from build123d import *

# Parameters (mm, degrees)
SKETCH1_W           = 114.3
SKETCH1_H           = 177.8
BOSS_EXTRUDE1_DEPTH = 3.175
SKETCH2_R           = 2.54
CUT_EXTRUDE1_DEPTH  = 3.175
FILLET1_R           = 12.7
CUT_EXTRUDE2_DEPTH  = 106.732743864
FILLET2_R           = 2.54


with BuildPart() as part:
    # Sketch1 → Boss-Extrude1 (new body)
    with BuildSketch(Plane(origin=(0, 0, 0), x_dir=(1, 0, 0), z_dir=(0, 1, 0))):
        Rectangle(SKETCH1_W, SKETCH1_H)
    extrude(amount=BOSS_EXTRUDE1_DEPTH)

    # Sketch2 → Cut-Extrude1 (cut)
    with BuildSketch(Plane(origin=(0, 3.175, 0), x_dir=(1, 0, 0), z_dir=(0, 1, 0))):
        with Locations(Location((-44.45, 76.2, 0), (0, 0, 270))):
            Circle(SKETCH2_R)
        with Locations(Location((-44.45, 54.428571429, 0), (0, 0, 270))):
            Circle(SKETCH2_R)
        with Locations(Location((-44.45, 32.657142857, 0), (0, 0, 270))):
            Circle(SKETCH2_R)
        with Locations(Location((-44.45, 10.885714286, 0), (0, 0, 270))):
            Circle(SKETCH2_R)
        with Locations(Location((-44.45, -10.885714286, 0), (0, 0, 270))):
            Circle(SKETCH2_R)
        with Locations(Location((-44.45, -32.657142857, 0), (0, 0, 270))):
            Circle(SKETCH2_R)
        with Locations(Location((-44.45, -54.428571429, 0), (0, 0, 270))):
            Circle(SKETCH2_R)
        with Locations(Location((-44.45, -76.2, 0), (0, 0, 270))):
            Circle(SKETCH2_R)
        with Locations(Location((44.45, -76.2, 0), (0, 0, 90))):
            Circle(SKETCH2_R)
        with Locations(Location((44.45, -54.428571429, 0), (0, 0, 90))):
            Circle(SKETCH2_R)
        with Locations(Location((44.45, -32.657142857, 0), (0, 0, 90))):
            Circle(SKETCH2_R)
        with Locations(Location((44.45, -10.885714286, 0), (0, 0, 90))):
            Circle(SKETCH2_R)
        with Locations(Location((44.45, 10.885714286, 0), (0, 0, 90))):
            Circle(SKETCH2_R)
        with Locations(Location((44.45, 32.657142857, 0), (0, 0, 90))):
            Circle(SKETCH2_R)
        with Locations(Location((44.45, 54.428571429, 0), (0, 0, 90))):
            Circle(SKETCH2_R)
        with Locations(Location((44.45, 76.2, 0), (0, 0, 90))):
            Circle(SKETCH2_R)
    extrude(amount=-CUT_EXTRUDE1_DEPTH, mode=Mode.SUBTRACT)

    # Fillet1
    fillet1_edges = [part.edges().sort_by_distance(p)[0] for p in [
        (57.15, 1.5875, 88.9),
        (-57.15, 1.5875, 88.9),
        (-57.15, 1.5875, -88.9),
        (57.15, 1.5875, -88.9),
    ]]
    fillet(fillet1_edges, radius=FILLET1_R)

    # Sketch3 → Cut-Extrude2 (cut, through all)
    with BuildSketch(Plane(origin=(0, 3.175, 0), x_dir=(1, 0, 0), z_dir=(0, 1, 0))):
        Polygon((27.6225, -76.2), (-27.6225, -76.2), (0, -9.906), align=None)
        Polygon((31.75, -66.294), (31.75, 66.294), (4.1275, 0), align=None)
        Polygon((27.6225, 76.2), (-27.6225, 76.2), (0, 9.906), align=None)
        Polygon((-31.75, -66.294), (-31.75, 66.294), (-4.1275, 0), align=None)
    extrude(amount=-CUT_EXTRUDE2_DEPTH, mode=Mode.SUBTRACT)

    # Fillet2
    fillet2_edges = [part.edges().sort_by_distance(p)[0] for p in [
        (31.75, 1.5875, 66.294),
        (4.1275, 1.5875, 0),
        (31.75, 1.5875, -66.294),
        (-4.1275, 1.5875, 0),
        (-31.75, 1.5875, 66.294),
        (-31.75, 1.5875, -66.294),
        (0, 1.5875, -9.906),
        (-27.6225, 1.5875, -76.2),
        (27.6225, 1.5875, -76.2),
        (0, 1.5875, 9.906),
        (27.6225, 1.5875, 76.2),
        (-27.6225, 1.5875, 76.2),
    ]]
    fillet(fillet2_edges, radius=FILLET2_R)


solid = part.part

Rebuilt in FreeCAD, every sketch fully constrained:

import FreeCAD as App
import Part
import Sketcher
from FreeCAD import Vector
Q = App.Units.Quantity


def edges_at(feature, points):
    """Names of the edges that pass closest to the given points."""
    edges = feature.Shape.Edges
    near = lambda p: min(range(len(edges)), key=lambda i: edges[i].distToShape(Part.Vertex(*p))[0])
    return sorted({f"Edge{near(p) + 1}" for p in points})

doc = App.newDocument("Part")
params = doc.addObject("Spreadsheet::Sheet", "Params")
for row, (alias, value) in enumerate([
    ("sketch1_height", "7 in"),
    ("sketch1_width", "4.5 in"),
    ("pad1_length", "0.125 in"),
    ("sketch2_diameter", "0.2 in"),
    ("pocket1_length", "0.125 in"),
    ("fillet_radius", "0.5 in"),
    ("sketch3_height", "5.22 in"),
    ("sketch3_width", "2.175 in"),
    ("fillet2_radius", "0.1 in"),
], start=1):
    params.set(f"A{row}", alias)
    params.set(f"B{row}", "=" + value)
    params.setAlias(f"B{row}", alias)

body = doc.addObject("PartDesign::Body", "Body")

# Sketch on XZ plane
sketch1 = body.newObject("Sketcher::SketchObject", "Sketch")
sketch1.AttachmentSupport = (doc.getObject("XZ_Plane"), [""])
sketch1.MapMode = "FlatFace"
sketch1.addGeometry([
    Part.LineSegment(Vector(-57, -89, 0), Vector(-57, 89, 0)),
    Part.LineSegment(Vector(-57, 89, 0), Vector(57, 89, 0)),
    Part.LineSegment(Vector(57, 89, 0), Vector(57, -89, 0)),
    Part.LineSegment(Vector(57, -89, 0), Vector(-57, -89, 0)),
], False)
sketch1.addConstraint([
    Sketcher.Constraint("Coincident", 0, 2, 1, 1),
    Sketcher.Constraint("Coincident", 1, 2, 2, 1),
    Sketcher.Constraint("Coincident", 2, 2, 3, 1),
    Sketcher.Constraint("Coincident", 3, 2, 0, 1),
    Sketcher.Constraint("Vertical", 0),
    Sketcher.Constraint("Horizontal", 1),
    Sketcher.Constraint("Vertical", 2),
    Sketcher.Constraint("Horizontal", 3),
    Sketcher.Constraint("Symmetric", 0, 2, 2, 2, -1, 1),
    Sketcher.Constraint("DistanceY", 0, 1, 0, 2, Q("7 in")),
    Sketcher.Constraint("DistanceX", 1, 1, 1, 2, Q("4.5 in")),
])
sketch1.setExpression("Constraints[9]", "Params.sketch1_height")
sketch1.setExpression("Constraints[10]", "Params.sketch1_width")
pad1 = body.newObject("PartDesign::Pad", "Pad")
pad1.Profile = sketch1
pad1.setExpression("Length", "Params.pad1_length")
pad1.Reversed = True

# Sketch on XZ plane
sketch2 = body.newObject("Sketcher::SketchObject", "Sketch001")
sketch2.AttachmentSupport = (doc.getObject("XZ_Plane"), [""])
sketch2.MapMode = "FlatFace"
sketch2.AttachmentOffset = App.Placement(Vector(0, 0, -0.125 * 25.4), App.Rotation())
sketch2.addGeometry([
    Part.Circle(Vector(-44.5, -76.2, 0), Vector(0, 0, 1), 2.5),  # 0
    Part.Circle(Vector(-44.5, -54.4, 0), Vector(0, 0, 1), 2.5),  # 1
    Part.Circle(Vector(-44.5, -32.7, 0), Vector(0, 0, 1), 2.5),  # 2
    Part.Circle(Vector(-44.5, -10.9, 0), Vector(0, 0, 1), 2.5),  # 3
    Part.Circle(Vector(-44.5, 10.9, 0), Vector(0, 0, 1), 2.5),  # 4
    Part.Circle(Vector(-44.5, 32.7, 0), Vector(0, 0, 1), 2.5),  # 5
    Part.Circle(Vector(-44.5, 54.4, 0), Vector(0, 0, 1), 2.5),  # 6
    Part.Circle(Vector(-44.5, 76.2, 0), Vector(0, 0, 1), 2.5),  # 7
    Part.Circle(Vector(44.5, 76.2, 0), Vector(0, 0, 1), 2.5),  # 8
    Part.Circle(Vector(44.5, 54.4, 0), Vector(0, 0, 1), 2.5),  # 9
    Part.Circle(Vector(44.5, 32.7, 0), Vector(0, 0, 1), 2.5),  # 10
    Part.Circle(Vector(44.5, 10.9, 0), Vector(0, 0, 1), 2.5),  # 11
    Part.Circle(Vector(44.5, -10.9, 0), Vector(0, 0, 1), 2.5),  # 12
    Part.Circle(Vector(44.5, -32.7, 0), Vector(0, 0, 1), 2.5),  # 13
    Part.Circle(Vector(44.5, -54.4, 0), Vector(0, 0, 1), 2.5),  # 14
    Part.Circle(Vector(44.5, -76.2, 0), Vector(0, 0, 1), 2.5),  # 15
], False)
sketch2.addConstraint([
    Sketcher.Constraint("Equal", 0, 1),
    Sketcher.Constraint("Equal", 1, 2),
    Sketcher.Constraint("Equal", 2, 3),
    Sketcher.Constraint("Equal", 3, 4),
    Sketcher.Constraint("Equal", 4, 5),
    Sketcher.Constraint("Equal", 5, 6),
    Sketcher.Constraint("Equal", 6, 7),
    Sketcher.Constraint("Equal", 7, 8),
    Sketcher.Constraint("Equal", 8, 9),
    Sketcher.Constraint("Equal", 9, 10),
    Sketcher.Constraint("Equal", 10, 11),
    Sketcher.Constraint("Equal", 11, 12),
    Sketcher.Constraint("Equal", 12, 13),
    Sketcher.Constraint("Equal", 13, 14),
    Sketcher.Constraint("Equal", 14, 15),
    Sketcher.Constraint("Symmetric", 0, 3, 8, 3, -1, 1),
    Sketcher.Constraint("Symmetric", 1, 3, 9, 3, -1, 1),
    Sketcher.Constraint("Symmetric", 2, 3, 10, 3, -1, 1),
    Sketcher.Constraint("Symmetric", 3, 3, 11, 3, -1, 1),
    Sketcher.Constraint("Symmetric", 4, 3, 12, 3, -1, 1),
    Sketcher.Constraint("Symmetric", 5, 3, 13, 3, -1, 1),
    Sketcher.Constraint("Symmetric", 6, 3, 14, 3, -1, 1),
    Sketcher.Constraint("Symmetric", 7, 3, 15, 3, -1, 1),
    Sketcher.Constraint("Symmetric", 7, 3, 8, 3, -2),
    Sketcher.Constraint("Symmetric", 6, 3, 9, 3, -2),
    Sketcher.Constraint("Symmetric", 5, 3, 10, 3, -2),
    Sketcher.Constraint("Symmetric", 4, 3, 11, 3, -2),
    Sketcher.Constraint("Vertical", 0, 3, 1, 3),
    Sketcher.Constraint("Vertical", 1, 3, 2, 3),
    Sketcher.Constraint("Vertical", 2, 3, 3, 3),
    Sketcher.Constraint("Diameter", 0, Q("0.2 in")),
    Sketcher.Constraint("DistanceY", 0, 3, -1, 1, Q("3 in")),
    Sketcher.Constraint("DistanceX", 7, 3, 8, 3, Q("3.5 in")),
    Sketcher.Constraint("DistanceY", 1, 3, -1, 1, 54.428571),
    Sketcher.Constraint("DistanceY", 1, 3, 2, 3, 21.771429),
    Sketcher.Constraint("DistanceY", 2, 3, 3, 3, 21.771429),
])
sketch2.setExpression("Constraints[30]", "Params.sketch2_diameter")
pocket1 = body.newObject("PartDesign::Pocket", "Pocket")
pocket1.Profile = sketch2
pocket1.setExpression("Length", "Params.pocket1_length")
pocket1.Reversed = True
doc.recompute()

fillet = body.newObject("PartDesign::Fillet", "Fillet")
fillet.Base = (pocket1, edges_at(pocket1, [
    (57.15, 1.587, 88.9),
    (-57.15, 1.587, 88.9),
    (-57.15, 1.587, -88.9),
    (57.15, 1.587, -88.9),
]))
fillet.setExpression("Radius", "Params.fillet_radius")

# Sketch on XZ plane
sketch3 = body.newObject("Sketcher::SketchObject", "Sketch002")
sketch3.AttachmentSupport = (doc.getObject("XZ_Plane"), [""])
sketch3.MapMode = "FlatFace"
sketch3.AttachmentOffset = App.Placement(Vector(0, 0, -0.125 * 25.4), App.Rotation())
sketch3.addGeometry([
    Part.LineSegment(Vector(-28, 76, 0), Vector(28, 76, 0)),  # 0
    Part.LineSegment(Vector(28, 76, 0), Vector(0, 10, 0)),  # 1
    Part.LineSegment(Vector(0, 10, 0), Vector(-28, 76, 0)),  # 2
    Part.LineSegment(Vector(32, 66, 0), Vector(32, -66, 0)),  # 3
    Part.LineSegment(Vector(32, -66, 0), Vector(4, 0, 0)),  # 4
    Part.LineSegment(Vector(4, 0, 0), Vector(32, 66, 0)),  # 5
    Part.LineSegment(Vector(28, -76, 0), Vector(-28, -76, 0)),  # 6
    Part.LineSegment(Vector(-28, -76, 0), Vector(0, -10, 0)),  # 7
    Part.LineSegment(Vector(0, -10, 0), Vector(28, -76, 0)),  # 8
    Part.LineSegment(Vector(-32, -66, 0), Vector(-32, 66, 0)),  # 9
    Part.LineSegment(Vector(-32, 66, 0), Vector(-4, 0, 0)),  # 10
    Part.LineSegment(Vector(-4, 0, 0), Vector(-32, -66, 0)),  # 11
], False)
sketch3.addConstraint([
    Sketcher.Constraint("Coincident", 0, 2, 1, 1),
    Sketcher.Constraint("Coincident", 1, 2, 2, 1),
    Sketcher.Constraint("Coincident", 2, 2, 0, 1),
    Sketcher.Constraint("Coincident", 3, 2, 4, 1),
    Sketcher.Constraint("Coincident", 4, 2, 5, 1),
    Sketcher.Constraint("Coincident", 5, 2, 3, 1),
    Sketcher.Constraint("Coincident", 6, 2, 7, 1),
    Sketcher.Constraint("Coincident", 7, 2, 8, 1),
    Sketcher.Constraint("Coincident", 8, 2, 6, 1),
    Sketcher.Constraint("Coincident", 9, 2, 10, 1),
    Sketcher.Constraint("Coincident", 10, 2, 11, 1),
    Sketcher.Constraint("Coincident", 11, 2, 9, 1),
    Sketcher.Constraint("Horizontal", 0),
    Sketcher.Constraint("Vertical", 3),
    Sketcher.Constraint("Horizontal", 6),
    Sketcher.Constraint("Vertical", 9),
    Sketcher.Constraint("Symmetric", 0, 2, 6, 2, -1, 1),
    Sketcher.Constraint("Symmetric", 1, 2, 7, 2, -1, 1),
    Sketcher.Constraint("Symmetric", 3, 2, 9, 2, -1, 1),
    Sketcher.Constraint("Symmetric", 4, 2, 10, 2, -1, 1),
    Sketcher.Constraint("PointOnObject", 1, 2, -2),
    Sketcher.Constraint("PointOnObject", 4, 2, -1),
    Sketcher.Constraint("Parallel", 2, 4),
    Sketcher.Constraint("Parallel", 1, 5),
    Sketcher.Constraint("Parallel", 4, 8),
    Sketcher.Constraint("Parallel", 7, 11),
    Sketcher.Constraint("Horizontal", 5, 2, 9, 2),
    Sketcher.Constraint("Equal", 2, 4),
    Sketcher.Constraint("DistanceY", -1, 1, 0, 2, Q("3 in")),
    Sketcher.Constraint("DistanceY", 3, 2, 3, 1, Q("5.22 in")),
    Sketcher.Constraint("DistanceX", 9, 2, 5, 2, Q("2.5 in")),
    Sketcher.Constraint("DistanceX", 0, 1, 0, 2, Q("2.175 in")),
])
sketch3.setExpression("Constraints[29]", "Params.sketch3_height")
sketch3.setExpression("Constraints[31]", "Params.sketch3_width")
pocket2 = body.newObject("PartDesign::Pocket", "Pocket001")
pocket2.Profile = sketch3
pocket2.Type = "ThroughAll"
pocket2.Reversed = True
doc.recompute()

fillet2 = body.newObject("PartDesign::Fillet", "Fillet001")
fillet2.Base = (pocket2, edges_at(pocket2, [
    (31.75, 1.587, 66.294),
    (4.128, 1.587, 0),
    (31.75, 1.587, -66.294),
    (-4.128, 1.587, 0),
    (-31.75, 1.587, 66.294),
    (-31.75, 1.587, -66.294),
    (0, 1.587, -9.906),
    (-27.622, 1.587, -76.2),
    (27.622, 1.587, -76.2),
    (0, 1.587, 9.906),
    (27.622, 1.587, 76.2),
    (-27.622, 1.587, 76.2),
]))
fillet2.setExpression("Radius", "Params.fillet2_radius")

doc.recompute()
